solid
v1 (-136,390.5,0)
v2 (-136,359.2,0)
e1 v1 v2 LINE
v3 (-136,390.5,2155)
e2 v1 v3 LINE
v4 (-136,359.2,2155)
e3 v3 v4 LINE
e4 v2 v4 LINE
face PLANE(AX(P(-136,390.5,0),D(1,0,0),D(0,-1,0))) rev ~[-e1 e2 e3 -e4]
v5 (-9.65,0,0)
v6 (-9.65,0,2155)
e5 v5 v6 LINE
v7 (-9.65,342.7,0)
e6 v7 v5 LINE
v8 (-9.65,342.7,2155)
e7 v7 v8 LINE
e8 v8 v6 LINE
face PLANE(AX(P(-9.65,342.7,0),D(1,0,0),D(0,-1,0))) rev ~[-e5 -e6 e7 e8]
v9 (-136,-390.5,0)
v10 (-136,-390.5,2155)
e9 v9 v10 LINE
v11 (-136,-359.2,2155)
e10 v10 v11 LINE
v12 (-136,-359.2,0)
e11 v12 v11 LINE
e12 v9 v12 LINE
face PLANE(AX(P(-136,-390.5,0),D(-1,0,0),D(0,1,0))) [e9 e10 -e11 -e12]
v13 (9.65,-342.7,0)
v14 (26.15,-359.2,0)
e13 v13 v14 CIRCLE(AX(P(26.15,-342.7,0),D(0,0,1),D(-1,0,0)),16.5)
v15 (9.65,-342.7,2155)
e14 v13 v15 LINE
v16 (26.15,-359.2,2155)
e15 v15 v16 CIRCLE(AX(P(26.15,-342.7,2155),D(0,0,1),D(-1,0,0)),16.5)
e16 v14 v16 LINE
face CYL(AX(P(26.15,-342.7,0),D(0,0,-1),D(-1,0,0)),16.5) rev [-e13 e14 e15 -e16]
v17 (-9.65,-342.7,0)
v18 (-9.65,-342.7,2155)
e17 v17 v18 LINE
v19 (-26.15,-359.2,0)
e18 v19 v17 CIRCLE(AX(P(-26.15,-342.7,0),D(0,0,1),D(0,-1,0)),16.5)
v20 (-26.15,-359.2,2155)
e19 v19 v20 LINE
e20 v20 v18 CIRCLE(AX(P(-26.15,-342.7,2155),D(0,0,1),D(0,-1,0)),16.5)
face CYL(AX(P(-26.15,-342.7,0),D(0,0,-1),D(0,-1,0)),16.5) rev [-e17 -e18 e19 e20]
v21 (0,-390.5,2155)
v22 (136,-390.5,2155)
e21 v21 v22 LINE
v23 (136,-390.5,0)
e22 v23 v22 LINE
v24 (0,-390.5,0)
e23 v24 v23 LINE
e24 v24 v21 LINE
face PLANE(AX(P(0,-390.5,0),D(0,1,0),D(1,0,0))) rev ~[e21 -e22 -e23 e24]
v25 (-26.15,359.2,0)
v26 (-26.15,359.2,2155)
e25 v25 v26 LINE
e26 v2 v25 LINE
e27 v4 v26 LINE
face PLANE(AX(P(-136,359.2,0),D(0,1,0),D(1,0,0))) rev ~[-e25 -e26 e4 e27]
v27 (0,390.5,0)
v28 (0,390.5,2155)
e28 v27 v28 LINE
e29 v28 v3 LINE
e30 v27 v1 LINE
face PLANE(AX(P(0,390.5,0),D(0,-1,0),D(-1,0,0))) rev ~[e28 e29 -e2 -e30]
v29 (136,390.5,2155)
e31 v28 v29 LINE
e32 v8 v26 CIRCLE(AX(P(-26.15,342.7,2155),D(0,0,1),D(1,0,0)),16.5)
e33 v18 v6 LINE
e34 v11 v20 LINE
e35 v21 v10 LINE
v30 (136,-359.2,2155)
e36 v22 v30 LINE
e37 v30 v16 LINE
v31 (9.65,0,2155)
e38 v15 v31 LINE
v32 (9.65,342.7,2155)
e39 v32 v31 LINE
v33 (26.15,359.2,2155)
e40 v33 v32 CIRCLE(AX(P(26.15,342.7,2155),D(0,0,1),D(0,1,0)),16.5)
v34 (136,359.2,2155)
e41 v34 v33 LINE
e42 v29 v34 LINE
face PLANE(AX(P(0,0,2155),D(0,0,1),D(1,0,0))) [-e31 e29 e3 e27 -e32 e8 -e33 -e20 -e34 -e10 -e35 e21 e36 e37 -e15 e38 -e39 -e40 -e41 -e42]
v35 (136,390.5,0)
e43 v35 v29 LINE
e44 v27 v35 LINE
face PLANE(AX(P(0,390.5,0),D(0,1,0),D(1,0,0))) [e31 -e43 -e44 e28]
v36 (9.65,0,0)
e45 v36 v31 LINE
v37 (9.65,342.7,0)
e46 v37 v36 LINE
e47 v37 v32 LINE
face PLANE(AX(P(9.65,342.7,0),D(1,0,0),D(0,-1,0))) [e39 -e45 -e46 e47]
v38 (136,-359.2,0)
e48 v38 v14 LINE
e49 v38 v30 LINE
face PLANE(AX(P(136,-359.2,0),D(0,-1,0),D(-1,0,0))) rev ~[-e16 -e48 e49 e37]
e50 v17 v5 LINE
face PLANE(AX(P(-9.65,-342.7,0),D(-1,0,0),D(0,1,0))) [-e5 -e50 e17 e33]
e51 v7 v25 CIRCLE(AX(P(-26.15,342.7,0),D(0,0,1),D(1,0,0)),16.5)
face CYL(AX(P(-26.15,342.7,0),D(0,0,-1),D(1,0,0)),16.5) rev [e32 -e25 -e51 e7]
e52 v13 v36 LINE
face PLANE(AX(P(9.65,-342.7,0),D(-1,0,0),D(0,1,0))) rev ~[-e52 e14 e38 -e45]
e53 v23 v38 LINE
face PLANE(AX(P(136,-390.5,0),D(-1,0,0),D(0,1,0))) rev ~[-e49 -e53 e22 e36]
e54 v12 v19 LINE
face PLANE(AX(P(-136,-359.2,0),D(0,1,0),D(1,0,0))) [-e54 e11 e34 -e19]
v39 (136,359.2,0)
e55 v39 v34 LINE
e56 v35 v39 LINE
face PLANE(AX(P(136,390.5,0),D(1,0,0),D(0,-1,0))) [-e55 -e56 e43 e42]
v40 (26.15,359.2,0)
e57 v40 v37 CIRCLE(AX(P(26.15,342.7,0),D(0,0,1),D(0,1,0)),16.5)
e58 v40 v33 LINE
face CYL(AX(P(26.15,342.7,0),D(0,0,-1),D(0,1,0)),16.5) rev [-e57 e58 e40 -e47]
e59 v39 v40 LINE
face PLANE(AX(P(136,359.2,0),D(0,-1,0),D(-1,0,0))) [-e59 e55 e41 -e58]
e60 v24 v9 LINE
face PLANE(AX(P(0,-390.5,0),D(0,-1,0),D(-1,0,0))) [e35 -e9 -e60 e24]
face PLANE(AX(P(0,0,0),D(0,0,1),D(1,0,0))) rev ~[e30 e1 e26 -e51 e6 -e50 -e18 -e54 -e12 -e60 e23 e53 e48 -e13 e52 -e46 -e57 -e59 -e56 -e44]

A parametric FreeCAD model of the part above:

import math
import FreeCAD as App
import Part
import Sketcher

V = App.Vector
Q = App.Units.Quantity

doc = App.newDocument("Part")
body = doc.addObject("PartDesign::Body", "Body")

sketch1 = body.newObject("Sketcher::SketchObject", "Sketch")
sketch1.AttachmentSupport = (doc.getObject("XY_Plane"), [""])
sketch1.MapMode = "FlatFace"
sketch1.addGeometry([
    Part.LineSegment(V(-136, -359, 0), V(-136, -390, 0)),
    Part.LineSegment(V(-136, -390, 0), V(136, -390, 0)),
    Part.LineSegment(V(136, -390, 0), V(136, -359, 0)),
    Part.LineSegment(V(136, -359, 0), V(26, -359, 0)),
    Part.ArcOfCircle(Part.Circle(V(26, -343, 0), V(0, 0, 1), 16), math.radians(180), math.radians(270)),
    Part.LineSegment(V(10, -343, 0), V(10, 343, 0)),
    Part.ArcOfCircle(Part.Circle(V(26, 343, 0), V(0, 0, 1), 16), math.radians(90), math.radians(180)),
    Part.LineSegment(V(26, 359, 0), V(136, 359, 0)),
    Part.LineSegment(V(136, 359, 0), V(136, 390, 0)),
    Part.LineSegment(V(136, 390, 0), V(-136, 390, 0)),
    Part.LineSegment(V(-136, 390, 0), V(-136, 359, 0)),
    Part.LineSegment(V(-136, 359, 0), V(-26, 359, 0)),
    Part.ArcOfCircle(Part.Circle(V(-26, 343, 0), V(0, 0, 1), 16), math.radians(0), math.radians(90)),
    Part.LineSegment(V(-10, 343, 0), V(-10, -343, 0)),
    Part.ArcOfCircle(Part.Circle(V(-26, -343, 0), V(0, 0, 1), 16), math.radians(-90), math.radians(0)),
    Part.LineSegment(V(-26, -359, 0), V(-136, -359, 0)),
], False)
sketch1.addConstraint([
    Sketcher.Constraint("Coincident", 0, 2, 1, 1),
    Sketcher.Constraint("Coincident", 1, 2, 2, 1),
    Sketcher.Constraint("Coincident", 2, 2, 3, 1),
    Sketcher.Constraint("Tangent", 3, 2, 4, 2),
    Sketcher.Constraint("Tangent", 4, 1, 5, 1),
    Sketcher.Constraint("Tangent", 5, 2, 6, 2),
    Sketcher.Constraint("Tangent", 6, 1, 7, 1),
    Sketcher.Constraint("Coincident", 7, 2, 8, 1),
    Sketcher.Constraint("Coincident", 8, 2, 9, 1),
    Sketcher.Constraint("Coincident", 9, 2, 10, 1),
    Sketcher.Constraint("Coincident", 10, 2, 11, 1),
    Sketcher.Constraint("Tangent", 11, 2, 12, 2),
    Sketcher.Constraint("Tangent", 12, 1, 13, 1),
    Sketcher.Constraint("Tangent", 13, 2, 14, 2),
    Sketcher.Constraint("Tangent", 14, 1, 15, 1),
    Sketcher.Constraint("Coincident", 15, 2, 0, 1),
    Sketcher.Constraint("Vertical", 0),
    Sketcher.Constraint("Horizontal", 1),
    Sketcher.Constraint("Vertical", 2),
    Sketcher.Constraint("Horizontal", 3),
    Sketcher.Constraint("Vertical", 5),
    Sketcher.Constraint("Horizontal", 7),
    Sketcher.Constraint("Vertical", 8),
    Sketcher.Constraint("Horizontal", 9),
    Sketcher.Constraint("Vertical", 10),
    Sketcher.Constraint("Horizontal", 11),
    Sketcher.Constraint("Vertical", 13),
    Sketcher.Constraint("Horizontal", 15),
    Sketcher.Constraint("Equal", 4, 6),
    Sketcher.Constraint("Equal", 6, 12),
    Sketcher.Constraint("Equal", 12, 14),
    Sketcher.Constraint("Symmetric", 4, 3, 12, 3, -1, 1),
    Sketcher.Constraint("Symmetric", 0, 2, 8, 2, -1, 1),
    Sketcher.Constraint("Symmetric", 7, 2, 10, 2, -2),
    Sketcher.Constraint("Symmetric", 2, 2, 15, 2, -2),
    Sketcher.Constraint("Radius", 4, Q("16.5 mm")),
    Sketcher.Constraint("DistanceY", 0, 2, 0, 1, Q("31.3 mm")),
    Sketcher.Constraint("DistanceX", 0, 2, -1, 1, Q("136 mm")),
    Sketcher.Constraint("DistanceY", 0, 2, -1, 1, Q("390.5 mm")),
    Sketcher.Constraint("DistanceX", -1, 1, 4, 1, Q("9.65 mm")),
])
pad1 = body.newObject("PartDesign::Pad", "Pad")
pad1.Profile = sketch1
pad1.Length = 2155

doc.recompute()
